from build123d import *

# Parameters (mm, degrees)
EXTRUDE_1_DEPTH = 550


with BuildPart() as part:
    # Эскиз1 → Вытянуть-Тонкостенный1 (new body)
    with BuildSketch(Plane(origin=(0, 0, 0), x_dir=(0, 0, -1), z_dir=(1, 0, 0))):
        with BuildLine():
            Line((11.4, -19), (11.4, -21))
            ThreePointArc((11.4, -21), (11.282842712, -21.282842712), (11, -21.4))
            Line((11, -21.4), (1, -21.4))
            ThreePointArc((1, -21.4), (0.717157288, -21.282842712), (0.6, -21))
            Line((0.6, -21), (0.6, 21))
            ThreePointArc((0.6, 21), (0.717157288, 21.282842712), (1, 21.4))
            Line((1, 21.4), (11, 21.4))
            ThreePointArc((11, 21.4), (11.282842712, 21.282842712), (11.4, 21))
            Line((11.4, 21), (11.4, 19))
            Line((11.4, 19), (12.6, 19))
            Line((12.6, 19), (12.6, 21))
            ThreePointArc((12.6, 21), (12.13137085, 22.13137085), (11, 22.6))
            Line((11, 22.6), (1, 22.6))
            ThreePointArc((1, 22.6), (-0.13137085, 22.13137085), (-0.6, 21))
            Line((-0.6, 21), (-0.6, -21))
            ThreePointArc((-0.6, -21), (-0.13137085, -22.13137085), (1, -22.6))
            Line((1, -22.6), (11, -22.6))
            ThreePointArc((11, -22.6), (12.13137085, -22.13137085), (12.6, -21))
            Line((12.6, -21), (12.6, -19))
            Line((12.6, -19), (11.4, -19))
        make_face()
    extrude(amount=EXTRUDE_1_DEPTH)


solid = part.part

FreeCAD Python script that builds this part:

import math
import FreeCAD as App
import Part
import Sketcher
from FreeCAD import Vector

doc = App.newDocument("Part")
body = doc.addObject("PartDesign::Body", "Body")

# Sketch on YZ plane
sketch1 = body.newObject("Sketcher::SketchObject", "Sketch")
sketch1.AttachmentSupport = (doc.getObject("YZ_Plane"), [""])
sketch1.MapMode = "FlatFace"
sketch1.addGeometry(Part.LineSegment(Vector(-19, -11.4, 0), Vector(-21, -11.4, 0)), False)
sketch1.addGeometry(Part.ArcOfCircle(Part.Circle(Vector(-21, -11, 0), Vector(0, 0, 1), 0.4), math.radians(-180), math.radians(-90)), False)
sketch1.addGeometry(Part.LineSegment(Vector(-21.4, -11, 0), Vector(-21.4, -1, 0)), False)
sketch1.addGeometry(Part.ArcOfCircle(Part.Circle(Vector(-21, -1, 0), Vector(0, 0, 1), 0.4), math.radians(90), math.radians(180)), False)
sketch1.addGeometry(Part.LineSegment(Vector(-21, -0.6, 0), Vector(21, -0.6, 0)), False)
sketch1.addGeometry(Part.ArcOfCircle(Part.Circle(Vector(21, -1, 0), Vector(0, 0, 1), 0.4), math.radians(0), math.radians(90)), False)
sketch1.addGeometry(Part.LineSegment(Vector(21.4, -1, 0), Vector(21.4, -11, 0)), False)
sketch1.addGeometry(Part.ArcOfCircle(Part.Circle(Vector(21, -11, 0), Vector(0, 0, 1), 0.4), math.radians(-90), math.radians(0)), False)
sketch1.addGeometry(Part.LineSegment(Vector(21, -11.4, 0), Vector(19, -11.4, 0)), False)
sketch1.addGeometry(Part.LineSegment(Vector(19, -11.4, 0), Vector(19, -12.6, 0)), False)
sketch1.addGeometry(Part.LineSegment(Vector(19, -12.6, 0), Vector(21, -12.6, 0)), False)
sketch1.addGeometry(Part.ArcOfCircle(Part.Circle(Vector(21, -11, 0), Vector(0, 0, 1), 1.6), math.radians(-90), math.radians(0)), False)
sketch1.addGeometry(Part.LineSegment(Vector(22.6, -11, 0), Vector(22.6, -1, 0)), False)
sketch1.addGeometry(Part.ArcOfCircle(Part.Circle(Vector(21, -1, 0), Vector(0, 0, 1), 1.6), math.radians(0), math.radians(90)), False)
sketch1.addGeometry(Part.LineSegment(Vector(21, 0.6, 0), Vector(-21, 0.6, 0)), False)
sketch1.addGeometry(Part.ArcOfCircle(Part.Circle(Vector(-21, -1, 0), Vector(0, 0, 1), 1.6), math.radians(90), math.radians(180)), False)
sketch1.addGeometry(Part.LineSegment(Vector(-22.6, -1, 0), Vector(-22.6, -11, 0)), False)
sketch1.addGeometry(Part.ArcOfCircle(Part.Circle(Vector(-21, -11, 0), Vector(0, 0, 1), 1.6), math.radians(180), math.radians(270)), False)
sketch1.addGeometry(Part.LineSegment(Vector(-21, -12.6, 0), Vector(-19, -12.6, 0)), False)
sketch1.addGeometry(Part.LineSegment(Vector(-19, -12.6, 0), Vector(-19, -11.4, 0)), False)
sketch1.addConstraint(Sketcher.Constraint("Tangent", 0, 2, 1, 2))
sketch1.addConstraint(Sketcher.Constraint("Tangent", 1, 1, 2, 1))
sketch1.addConstraint(Sketcher.Constraint("Tangent", 2, 2, 3, 2))
sketch1.addConstraint(Sketcher.Constraint("Tangent", 3, 1, 4, 1))
sketch1.addConstraint(Sketcher.Constraint("Tangent", 4, 2, 5, 2))
sketch1.addConstraint(Sketcher.Constraint("Tangent", 5, 1, 6, 1))
sketch1.addConstraint(Sketcher.Constraint("Tangent", 6, 2, 7, 2))
sketch1.addConstraint(Sketcher.Constraint("Tangent", 7, 1, 8, 1))
sketch1.addConstraint(Sketcher.Constraint("Coincident", 8, 2, 9, 1))
sketch1.addConstraint(Sketcher.Constraint("Coincident", 9, 2, 10, 1))
sketch1.addConstraint(Sketcher.Constraint("Tangent", 10, 2, 11, 1))
sketch1.addConstraint(Sketcher.Constraint("Tangent", 11, 2, 12, 1))
sketch1.addConstraint(Sketcher.Constraint("Tangent", 12, 2, 13, 1))
sketch1.addConstraint(Sketcher.Constraint("Tangent", 13, 2, 14, 1))
sketch1.addConstraint(Sketcher.Constraint("Tangent", 14, 2, 15, 1))
sketch1.addConstraint(Sketcher.Constraint("Tangent", 15, 2, 16, 1))
sketch1.addConstraint(Sketcher.Constraint("Tangent", 16, 2, 17, 1))
sketch1.addConstraint(Sketcher.Constraint("Tangent", 17, 2, 18, 1))
sketch1.addConstraint(Sketcher.Constraint("Coincident", 18, 2, 19, 1))
sketch1.addConstraint(Sketcher.Constraint("Coincident", 19, 2, 0, 1))
sketch1.addConstraint(Sketcher.Constraint("Horizontal", 0))
sketch1.addConstraint(Sketcher.Constraint("Vertical", 2))
sketch1.addConstraint(Sketcher.Constraint("Horizontal", 4))
sketch1.addConstraint(Sketcher.Constraint("Vertical", 6))
sketch1.addConstraint(Sketcher.Constraint("Horizontal", 8))
sketch1.addConstraint(Sketcher.Constraint("Vertical", 9))
sketch1.addConstraint(Sketcher.Constraint("Horizontal", 10))
sketch1.addConstraint(Sketcher.Constraint("Vertical", 12))
sketch1.addConstraint(Sketcher.Constraint("Horizontal", 14))
sketch1.addConstraint(Sketcher.Constraint("Vertical", 16))
sketch1.addConstraint(Sketcher.Constraint("Horizontal", 18))
sketch1.addConstraint(Sketcher.Constraint("Vertical", 19))
sketch1.addConstraint(Sketcher.Constraint("Coincident", 11, 3, 7, 3))
sketch1.addConstraint(Sketcher.Constraint("Coincident", 13, 3, 5, 3))
sketch1.addConstraint(Sketcher.Constraint("Coincident", 15, 3, 3, 3))
sketch1.addConstraint(Sketcher.Constraint("Coincident", 17, 3, 1, 3))
sketch1.addConstraint(Sketcher.Constraint("Equal", 1, 3))
sketch1.addConstraint(Sketcher.Constraint("Equal", 3, 5))
sketch1.addConstraint(Sketcher.Constraint("Equal", 5, 7))
sketch1.addConstraint(Sketcher.Constraint("Symmetric", 3, 1, 13, 2, -1, 1))
sketch1.addConstraint(Sketcher.Constraint("Symmetric", 9, 2, 18, 2, -2))
sketch1.addConstraint(Sketcher.Constraint("Radius", 1, 0.4))
sketch1.addConstraint(Sketcher.Constraint("Radius", 11, 1.6))
sketch1.addConstraint(Sketcher.Constraint("DistanceX", 0, 2, 0, 1, 2.0))
sketch1.addConstraint(Sketcher.Constraint("DistanceX", 4, 1, 4, 2, 42.0))
sketch1.addConstraint(Sketcher.Constraint("DistanceY", 2, 1, 2, 2, 10.0))
pad1 = body.newObject("PartDesign::Pad", "Pad")
pad1.Profile = sketch1
pad1.Length = 550

doc.recompute()
